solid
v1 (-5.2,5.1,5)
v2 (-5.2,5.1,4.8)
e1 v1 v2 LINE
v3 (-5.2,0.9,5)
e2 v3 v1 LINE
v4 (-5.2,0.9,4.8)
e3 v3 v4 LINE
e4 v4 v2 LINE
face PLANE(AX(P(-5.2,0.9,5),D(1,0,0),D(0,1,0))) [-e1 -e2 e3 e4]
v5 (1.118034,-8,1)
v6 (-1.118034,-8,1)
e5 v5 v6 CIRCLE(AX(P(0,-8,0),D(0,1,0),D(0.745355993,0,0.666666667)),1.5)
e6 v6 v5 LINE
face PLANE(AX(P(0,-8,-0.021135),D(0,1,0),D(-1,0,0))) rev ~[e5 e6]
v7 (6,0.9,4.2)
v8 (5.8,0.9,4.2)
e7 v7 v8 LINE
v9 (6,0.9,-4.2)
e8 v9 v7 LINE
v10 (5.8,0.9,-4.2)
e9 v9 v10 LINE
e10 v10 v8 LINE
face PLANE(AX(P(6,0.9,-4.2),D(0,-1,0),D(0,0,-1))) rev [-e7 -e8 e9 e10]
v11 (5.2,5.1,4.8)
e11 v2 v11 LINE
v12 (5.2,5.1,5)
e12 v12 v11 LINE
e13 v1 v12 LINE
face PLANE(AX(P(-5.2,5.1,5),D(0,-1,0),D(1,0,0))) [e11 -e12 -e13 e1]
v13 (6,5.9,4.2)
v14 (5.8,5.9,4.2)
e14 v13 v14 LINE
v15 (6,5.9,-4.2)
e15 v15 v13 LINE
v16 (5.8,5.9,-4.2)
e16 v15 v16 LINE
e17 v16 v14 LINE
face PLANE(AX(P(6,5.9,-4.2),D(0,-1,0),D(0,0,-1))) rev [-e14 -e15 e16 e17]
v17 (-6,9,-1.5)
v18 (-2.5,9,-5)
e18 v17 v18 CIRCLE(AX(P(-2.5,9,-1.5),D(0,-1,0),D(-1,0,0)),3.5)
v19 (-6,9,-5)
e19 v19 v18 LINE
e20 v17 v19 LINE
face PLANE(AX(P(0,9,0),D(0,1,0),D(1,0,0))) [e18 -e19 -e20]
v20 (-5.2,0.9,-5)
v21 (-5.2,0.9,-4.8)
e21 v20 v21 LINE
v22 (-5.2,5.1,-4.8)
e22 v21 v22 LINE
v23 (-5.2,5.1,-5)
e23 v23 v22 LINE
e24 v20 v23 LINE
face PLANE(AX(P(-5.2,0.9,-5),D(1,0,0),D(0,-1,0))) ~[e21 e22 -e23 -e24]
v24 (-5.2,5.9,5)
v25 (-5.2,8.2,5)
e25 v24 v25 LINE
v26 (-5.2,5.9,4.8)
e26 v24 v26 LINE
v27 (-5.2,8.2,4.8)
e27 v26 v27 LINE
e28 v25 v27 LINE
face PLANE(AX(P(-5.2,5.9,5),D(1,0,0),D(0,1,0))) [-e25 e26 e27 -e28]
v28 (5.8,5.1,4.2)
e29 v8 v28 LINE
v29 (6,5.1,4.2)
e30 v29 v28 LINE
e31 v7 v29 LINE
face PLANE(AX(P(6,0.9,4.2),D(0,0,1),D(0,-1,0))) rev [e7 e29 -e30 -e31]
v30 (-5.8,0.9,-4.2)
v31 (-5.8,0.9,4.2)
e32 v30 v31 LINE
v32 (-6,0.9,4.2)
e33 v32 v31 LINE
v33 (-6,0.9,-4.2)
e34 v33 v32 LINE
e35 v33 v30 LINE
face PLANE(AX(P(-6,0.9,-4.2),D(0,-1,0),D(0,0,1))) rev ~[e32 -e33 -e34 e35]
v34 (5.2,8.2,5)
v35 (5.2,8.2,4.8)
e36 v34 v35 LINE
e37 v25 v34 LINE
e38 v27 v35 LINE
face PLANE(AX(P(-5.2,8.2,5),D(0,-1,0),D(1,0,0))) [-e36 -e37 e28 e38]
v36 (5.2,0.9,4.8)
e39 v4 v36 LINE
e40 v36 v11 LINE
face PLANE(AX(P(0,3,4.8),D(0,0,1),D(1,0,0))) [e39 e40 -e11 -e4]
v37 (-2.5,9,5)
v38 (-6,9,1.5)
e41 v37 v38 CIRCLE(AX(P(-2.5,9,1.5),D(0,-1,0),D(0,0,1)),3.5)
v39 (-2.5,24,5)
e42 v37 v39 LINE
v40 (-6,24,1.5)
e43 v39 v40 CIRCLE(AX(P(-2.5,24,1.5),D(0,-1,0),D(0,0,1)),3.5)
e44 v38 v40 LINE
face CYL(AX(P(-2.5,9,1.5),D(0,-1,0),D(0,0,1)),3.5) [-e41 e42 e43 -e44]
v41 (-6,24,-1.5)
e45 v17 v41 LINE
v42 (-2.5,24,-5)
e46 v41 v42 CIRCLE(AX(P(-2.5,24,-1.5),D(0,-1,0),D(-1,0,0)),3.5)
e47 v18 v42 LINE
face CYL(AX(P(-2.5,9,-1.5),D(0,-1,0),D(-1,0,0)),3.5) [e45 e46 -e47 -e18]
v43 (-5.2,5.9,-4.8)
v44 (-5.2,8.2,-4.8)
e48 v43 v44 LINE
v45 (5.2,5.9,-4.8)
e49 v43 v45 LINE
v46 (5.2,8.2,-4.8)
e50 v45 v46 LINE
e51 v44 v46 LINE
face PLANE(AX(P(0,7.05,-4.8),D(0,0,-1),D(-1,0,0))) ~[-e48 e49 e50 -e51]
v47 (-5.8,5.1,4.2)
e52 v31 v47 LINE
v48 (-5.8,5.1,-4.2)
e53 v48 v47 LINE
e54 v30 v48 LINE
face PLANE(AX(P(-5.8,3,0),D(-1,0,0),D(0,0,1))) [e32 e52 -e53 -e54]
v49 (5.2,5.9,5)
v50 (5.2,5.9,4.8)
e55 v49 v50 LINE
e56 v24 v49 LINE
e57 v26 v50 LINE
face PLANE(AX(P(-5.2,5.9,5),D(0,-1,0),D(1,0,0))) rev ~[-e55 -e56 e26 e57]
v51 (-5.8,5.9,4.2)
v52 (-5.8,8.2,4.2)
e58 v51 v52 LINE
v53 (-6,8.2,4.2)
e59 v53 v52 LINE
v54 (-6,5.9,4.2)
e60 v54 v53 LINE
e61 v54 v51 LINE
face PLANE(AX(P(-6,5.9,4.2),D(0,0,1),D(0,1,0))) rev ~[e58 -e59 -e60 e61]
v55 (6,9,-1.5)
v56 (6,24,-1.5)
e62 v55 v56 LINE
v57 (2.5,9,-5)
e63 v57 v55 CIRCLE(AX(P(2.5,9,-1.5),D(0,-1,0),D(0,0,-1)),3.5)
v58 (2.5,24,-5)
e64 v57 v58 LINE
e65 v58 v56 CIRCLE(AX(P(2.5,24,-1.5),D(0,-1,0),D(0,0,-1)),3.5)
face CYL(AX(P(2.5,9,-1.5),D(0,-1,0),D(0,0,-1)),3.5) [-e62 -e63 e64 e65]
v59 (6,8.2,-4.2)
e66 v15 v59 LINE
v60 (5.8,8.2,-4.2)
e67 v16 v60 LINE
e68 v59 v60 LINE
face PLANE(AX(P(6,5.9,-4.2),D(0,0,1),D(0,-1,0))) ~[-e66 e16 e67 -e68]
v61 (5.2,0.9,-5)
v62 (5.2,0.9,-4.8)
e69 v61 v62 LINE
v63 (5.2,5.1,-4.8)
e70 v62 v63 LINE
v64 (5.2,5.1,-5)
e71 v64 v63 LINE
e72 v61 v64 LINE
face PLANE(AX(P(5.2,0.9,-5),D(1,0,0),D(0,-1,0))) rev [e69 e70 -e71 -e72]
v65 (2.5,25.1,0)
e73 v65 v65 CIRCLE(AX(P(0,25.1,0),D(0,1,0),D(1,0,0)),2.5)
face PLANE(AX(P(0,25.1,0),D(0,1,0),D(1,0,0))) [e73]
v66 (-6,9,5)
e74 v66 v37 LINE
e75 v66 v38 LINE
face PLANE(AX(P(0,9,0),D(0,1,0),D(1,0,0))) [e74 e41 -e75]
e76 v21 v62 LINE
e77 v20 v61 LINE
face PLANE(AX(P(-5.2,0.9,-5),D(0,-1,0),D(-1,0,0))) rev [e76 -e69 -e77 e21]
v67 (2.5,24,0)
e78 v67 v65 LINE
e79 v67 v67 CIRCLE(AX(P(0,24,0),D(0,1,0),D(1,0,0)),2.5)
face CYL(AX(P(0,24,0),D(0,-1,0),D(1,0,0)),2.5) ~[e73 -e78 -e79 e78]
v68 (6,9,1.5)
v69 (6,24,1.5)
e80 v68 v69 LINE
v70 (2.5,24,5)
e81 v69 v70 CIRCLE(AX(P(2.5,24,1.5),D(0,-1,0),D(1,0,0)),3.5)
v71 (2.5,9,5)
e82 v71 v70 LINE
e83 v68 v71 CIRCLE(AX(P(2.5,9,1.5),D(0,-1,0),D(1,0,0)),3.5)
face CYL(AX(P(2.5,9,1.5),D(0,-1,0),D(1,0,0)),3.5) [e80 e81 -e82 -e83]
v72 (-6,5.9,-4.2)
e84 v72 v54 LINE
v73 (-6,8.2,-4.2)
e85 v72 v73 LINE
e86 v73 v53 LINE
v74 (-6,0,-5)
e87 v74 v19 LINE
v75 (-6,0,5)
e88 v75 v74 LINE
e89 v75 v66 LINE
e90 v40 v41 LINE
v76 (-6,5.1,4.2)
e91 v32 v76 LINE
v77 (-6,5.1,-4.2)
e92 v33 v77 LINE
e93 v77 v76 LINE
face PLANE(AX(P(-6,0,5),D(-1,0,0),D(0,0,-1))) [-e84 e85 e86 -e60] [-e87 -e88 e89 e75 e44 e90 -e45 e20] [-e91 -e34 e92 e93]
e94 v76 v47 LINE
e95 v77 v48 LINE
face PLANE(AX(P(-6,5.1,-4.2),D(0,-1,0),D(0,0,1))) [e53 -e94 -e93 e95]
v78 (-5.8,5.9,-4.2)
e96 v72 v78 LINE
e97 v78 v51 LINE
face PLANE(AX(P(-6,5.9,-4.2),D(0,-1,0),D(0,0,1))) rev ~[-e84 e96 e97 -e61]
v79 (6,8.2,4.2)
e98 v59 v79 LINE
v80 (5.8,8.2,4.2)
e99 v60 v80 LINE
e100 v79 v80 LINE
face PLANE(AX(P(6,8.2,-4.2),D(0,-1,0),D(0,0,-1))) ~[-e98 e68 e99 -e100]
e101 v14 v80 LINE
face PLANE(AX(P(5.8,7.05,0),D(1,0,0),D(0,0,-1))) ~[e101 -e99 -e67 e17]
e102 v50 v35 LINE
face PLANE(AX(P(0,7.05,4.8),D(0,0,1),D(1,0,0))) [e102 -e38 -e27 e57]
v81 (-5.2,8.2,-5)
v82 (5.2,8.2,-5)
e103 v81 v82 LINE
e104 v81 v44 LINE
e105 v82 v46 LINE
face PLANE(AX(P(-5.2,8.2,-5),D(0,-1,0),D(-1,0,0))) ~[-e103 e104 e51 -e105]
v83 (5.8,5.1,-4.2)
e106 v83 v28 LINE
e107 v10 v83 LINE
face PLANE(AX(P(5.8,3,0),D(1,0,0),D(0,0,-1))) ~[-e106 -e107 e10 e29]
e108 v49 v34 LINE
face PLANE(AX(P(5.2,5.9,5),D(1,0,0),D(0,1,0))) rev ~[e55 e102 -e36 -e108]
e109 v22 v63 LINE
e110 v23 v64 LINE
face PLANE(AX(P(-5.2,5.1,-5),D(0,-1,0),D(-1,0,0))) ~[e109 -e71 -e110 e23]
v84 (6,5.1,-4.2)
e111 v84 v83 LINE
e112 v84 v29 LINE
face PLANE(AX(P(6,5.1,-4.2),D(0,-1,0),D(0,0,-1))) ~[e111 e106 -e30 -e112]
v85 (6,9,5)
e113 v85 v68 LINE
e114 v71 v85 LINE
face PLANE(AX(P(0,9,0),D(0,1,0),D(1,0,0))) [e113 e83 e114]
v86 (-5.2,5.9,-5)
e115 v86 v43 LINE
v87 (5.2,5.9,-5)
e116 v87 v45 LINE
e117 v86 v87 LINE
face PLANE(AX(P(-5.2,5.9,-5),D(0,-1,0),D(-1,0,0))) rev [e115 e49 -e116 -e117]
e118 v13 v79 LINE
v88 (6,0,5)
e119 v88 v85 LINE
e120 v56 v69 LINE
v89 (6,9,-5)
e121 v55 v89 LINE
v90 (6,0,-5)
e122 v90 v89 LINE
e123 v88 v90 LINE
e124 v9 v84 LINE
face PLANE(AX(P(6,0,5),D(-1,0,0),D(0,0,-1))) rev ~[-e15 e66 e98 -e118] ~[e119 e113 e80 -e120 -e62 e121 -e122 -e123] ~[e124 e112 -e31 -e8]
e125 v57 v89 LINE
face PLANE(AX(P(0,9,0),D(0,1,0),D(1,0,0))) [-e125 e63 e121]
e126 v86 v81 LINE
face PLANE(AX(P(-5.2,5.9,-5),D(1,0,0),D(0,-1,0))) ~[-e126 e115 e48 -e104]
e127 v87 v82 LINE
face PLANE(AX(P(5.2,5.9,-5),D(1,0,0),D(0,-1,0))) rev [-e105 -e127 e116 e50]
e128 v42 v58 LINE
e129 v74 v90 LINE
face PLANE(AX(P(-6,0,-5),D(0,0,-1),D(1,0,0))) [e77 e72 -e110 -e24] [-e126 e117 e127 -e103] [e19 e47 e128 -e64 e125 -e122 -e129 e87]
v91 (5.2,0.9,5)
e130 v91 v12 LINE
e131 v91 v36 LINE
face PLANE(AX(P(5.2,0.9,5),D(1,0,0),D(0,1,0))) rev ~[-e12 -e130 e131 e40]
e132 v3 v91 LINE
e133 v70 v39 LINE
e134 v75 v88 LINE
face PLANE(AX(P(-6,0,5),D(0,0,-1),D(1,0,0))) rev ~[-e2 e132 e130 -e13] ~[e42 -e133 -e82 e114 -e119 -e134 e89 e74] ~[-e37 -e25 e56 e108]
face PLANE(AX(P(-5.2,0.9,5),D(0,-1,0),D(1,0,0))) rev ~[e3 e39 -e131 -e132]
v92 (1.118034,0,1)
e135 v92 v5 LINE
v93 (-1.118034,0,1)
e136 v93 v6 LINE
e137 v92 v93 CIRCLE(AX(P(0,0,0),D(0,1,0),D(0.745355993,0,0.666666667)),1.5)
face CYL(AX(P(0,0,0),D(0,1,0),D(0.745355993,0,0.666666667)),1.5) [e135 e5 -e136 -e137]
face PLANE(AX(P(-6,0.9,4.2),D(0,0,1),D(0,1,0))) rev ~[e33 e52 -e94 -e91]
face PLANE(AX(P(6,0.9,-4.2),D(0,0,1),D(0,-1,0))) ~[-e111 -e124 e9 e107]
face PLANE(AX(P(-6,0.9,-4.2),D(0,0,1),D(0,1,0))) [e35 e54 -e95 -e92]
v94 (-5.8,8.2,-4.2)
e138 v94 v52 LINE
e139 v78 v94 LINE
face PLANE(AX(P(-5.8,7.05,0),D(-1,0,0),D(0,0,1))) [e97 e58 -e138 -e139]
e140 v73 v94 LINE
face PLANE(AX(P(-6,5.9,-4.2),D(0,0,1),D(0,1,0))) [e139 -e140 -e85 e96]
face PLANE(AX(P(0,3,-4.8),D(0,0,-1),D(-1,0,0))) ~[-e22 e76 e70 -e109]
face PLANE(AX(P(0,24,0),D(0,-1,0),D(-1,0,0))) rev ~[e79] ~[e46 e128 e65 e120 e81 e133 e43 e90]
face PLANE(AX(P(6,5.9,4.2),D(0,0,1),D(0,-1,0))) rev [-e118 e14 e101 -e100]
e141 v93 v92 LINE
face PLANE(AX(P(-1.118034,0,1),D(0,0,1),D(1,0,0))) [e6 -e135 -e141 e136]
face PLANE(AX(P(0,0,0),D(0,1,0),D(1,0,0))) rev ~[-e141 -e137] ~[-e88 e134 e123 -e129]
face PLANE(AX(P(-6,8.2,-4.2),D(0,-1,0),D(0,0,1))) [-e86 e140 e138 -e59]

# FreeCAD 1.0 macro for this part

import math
import FreeCAD as App
import Part
import Sketcher
Q = App.Units.Quantity


def add_polygon(sketch, points):
    """Adds a closed chain of lines whose ends are joined by coincident constraints."""
    first, n = sketch.GeometryCount, len(points)
    for a, b in zip(points, points[1:] + points[:1]):
        sketch.addGeometry(Part.LineSegment(App.Vector(*a, 0), App.Vector(*b, 0)), False)
    for i in range(n):
        sketch.addConstraint(Sketcher.Constraint("Coincident", first + i, 2, first + (i + 1) % n, 1))

doc = App.newDocument("Part")
body = doc.addObject("PartDesign::Body", "Body")

sketch1 = body.newObject("Sketcher::SketchObject", "Sketch")
sketch1.AttachmentSupport = (doc.getObject("XZ_Plane"), [""])
sketch1.MapMode = "FlatFace"
add_polygon(sketch1, [(-6, -5), (-6, 5), (6, 5), (6, -5)])
sketch1.addConstraint([
    Sketcher.Constraint("Vertical", 0),
    Sketcher.Constraint("Horizontal", 1),
    Sketcher.Constraint("Vertical", 2),
    Sketcher.Constraint("Horizontal", 3),
    Sketcher.Constraint("Symmetric", 0, 2, 2, 2, -1, 1),
    Sketcher.Constraint("DistanceX", 1, 1, 1, 2, Q("12 mm")),
    Sketcher.Constraint("DistanceY", 0, 1, 0, 2, Q("10 mm")),
])
pad1 = body.newObject("PartDesign::Pad", "Pad")
pad1.Profile = sketch1
pad1.Length = 9
pad1.Reversed = True

sketch2 = body.newObject("Sketcher::SketchObject", "Sketch001")
sketch2.AttachmentSupport = (doc.getObject("XZ_Plane"), [""])
sketch2.MapMode = "FlatFace"
sketch2.AttachmentOffset = App.Placement(App.Vector(0, 0, -9), App.Rotation())
sketch2.addGeometry([
    Part.LineSegment(App.Vector(2.5, -5, 0), App.Vector(-2.5, -5, 0)),
    Part.ArcOfCircle(Part.Circle(App.Vector(-2.5, -1.5, 0), App.Vector(0, 0, 1), 3.5), math.radians(-180), math.radians(-90)),
    Part.LineSegment(App.Vector(-6, -1.5, 0), App.Vector(-6, 1.5, 0)),
    Part.ArcOfCircle(Part.Circle(App.Vector(-2.5, 1.5, 0), App.Vector(0, 0, 1), 3.5), math.radians(90), math.radians(180)),
    Part.LineSegment(App.Vector(-2.5, 5, 0), App.Vector(2.5, 5, 0)),
    Part.ArcOfCircle(Part.Circle(App.Vector(2.5, 1.5, 0), App.Vector(0, 0, 1), 3.5), math.radians(0), math.radians(90)),
    Part.LineSegment(App.Vector(6, 1.5, 0), App.Vector(6, -1.5, 0)),
    Part.ArcOfCircle(Part.Circle(App.Vector(2.5, -1.5, 0), App.Vector(0, 0, 1), 3.5), math.radians(-90), math.radians(0)),
], False)
sketch2.addConstraint([
    Sketcher.Constraint("Tangent", 0, 2, 1, 2),
    Sketcher.Constraint("Tangent", 1, 1, 2, 1),
    Sketcher.Constraint("Tangent", 2, 2, 3, 2),
    Sketcher.Constraint("Tangent", 3, 1, 4, 1),
    Sketcher.Constraint("Tangent", 4, 2, 5, 2),
    Sketcher.Constraint("Tangent", 5, 1, 6, 1),
    Sketcher.Constraint("Tangent", 6, 2, 7, 2),
    Sketcher.Constraint("Tangent", 7, 1, 0, 1),
    Sketcher.Constraint("Horizontal", 0),
    Sketcher.Constraint("Vertical", 2),
    Sketcher.Constraint("Horizontal", 4),
    Sketcher.Constraint("Vertical", 6),
    Sketcher.Constraint("Equal", 1, 3),
    Sketcher.Constraint("Equal", 3, 5),
    Sketcher.Constraint("Equal", 5, 7),
    Sketcher.Constraint("Symmetric", 1, 3, 5, 3, -1, 1),
    Sketcher.Constraint("Radius", 1, Q("3.5 mm")),
    Sketcher.Constraint("DistanceX", 0, 2, 0, 1, Q("5 mm")),
    Sketcher.Constraint("DistanceY", 2, 1, 2, 2, Q("3 mm")),
])
pad2 = body.newObject("PartDesign::Pad", "Pad001")
pad2.Profile = sketch2
pad2.Length = 15
pad2.Reversed = True

sketch3 = body.newObject("Sketcher::SketchObject", "Sketch002")
sketch3.AttachmentSupport = (doc.getObject("XZ_Plane"), [""])
sketch3.MapMode = "FlatFace"
sketch3.AttachmentOffset = App.Placement(App.Vector(0, 0, -24), App.Rotation())
sketch3.addGeometry(Part.Circle(App.Vector(0, 0, 0), App.Vector(0, 0, 1), 2.5), False)
sketch3.addConstraint([
    Sketcher.Constraint("Coincident", 0, 3, -1, 1),
    Sketcher.Constraint("Diameter", 0, Q("5 mm")),
])
pad3 = body.newObject("PartDesign::Pad", "Pad002")
pad3.Profile = sketch3
pad3.Length = 1.1
pad3.Reversed = True

sketch4 = body.newObject("Sketcher::SketchObject", "Sketch003")
sketch4.AttachmentSupport = (doc.getObject("XZ_Plane"), [""])
sketch4.MapMode = "FlatFace"
sketch4.addGeometry([
    Part.LineSegment(App.Vector(1.1, 1, 0), App.Vector(-1.1, 1, 0)),
    Part.ArcOfCircle(Part.Circle(App.Vector(0, 0, 0), App.Vector(0, 0, 1), 1.5), math.radians(138), math.radians(402)),
], False)
sketch4.addConstraint([
    Sketcher.Constraint("Coincident", 0, 1, 1, 2),
    Sketcher.Constraint("Coincident", 1, 1, 0, 2),
    Sketcher.Constraint("Horizontal", 0),
    Sketcher.Constraint("Coincident", 1, 3, -1, 1),
    Sketcher.Constraint("Radius", 1, Q("1.5 mm")),
    Sketcher.Constraint("DistanceY", -1, 1, 0, 1, Q("1 mm")),
])
pad4 = body.newObject("PartDesign::Pad", "Pad003")
pad4.Profile = sketch4
pad4.Length = 8

sketch5 = body.newObject("Sketcher::SketchObject", "Sketch004")
sketch5.AttachmentSupport = (doc.getObject("XY_Plane"), [""])
sketch5.MapMode = "FlatFace"
sketch5.AttachmentOffset = App.Placement(App.Vector(0, 0, 5), App.Rotation())
add_polygon(sketch5, [(-5.2, 8.2), (-5.2, 5.9), (5.2, 5.9), (5.2, 8.2)])
add_polygon(sketch5, [(-5.2, 5.1), (-5.2, 0.9), (5.2, 0.9), (5.2, 5.1)])
sketch5.addConstraint([
    Sketcher.Constraint("Vertical", 0),
    Sketcher.Constraint("Horizontal", 1),
    Sketcher.Constraint("Vertical", 2),
    Sketcher.Constraint("Horizontal", 3),
    Sketcher.Constraint("Vertical", 4),
    Sketcher.Constraint("Horizontal", 5),
    Sketcher.Constraint("Vertical", 6),
    Sketcher.Constraint("Horizontal", 7),
    Sketcher.Constraint("Vertical", 3, 2, 4, 2),
    Sketcher.Constraint("Vertical", 2, 2, 5, 2),
    Sketcher.Constraint("DistanceX", 1, 1, 1, 2, Q("10.4 mm")),
    Sketcher.Constraint("DistanceY", 0, 2, 0, 1, Q("2.3 mm")),
    Sketcher.Constraint("DistanceY", 4, 2, 4, 1, Q("4.2 mm")),
    Sketcher.Constraint("DistanceY", 4, 2, 0, 2, Q("5 mm")),
    Sketcher.Constraint("DistanceX", 0, 2, -1, 1, Q("5.2 mm")),
    Sketcher.Constraint("DistanceY", -1, 1, 0, 2, Q("5.9 mm")),
])
pocket1 = body.newObject("PartDesign::Pocket", "Pocket")
pocket1.Profile = sketch5
pocket1.Length = 0.2
doc.recompute()

mirrored = body.newObject("PartDesign::Mirrored", "Mirrored")
mirrored.Originals = [pocket1]
mirrored.MirrorPlane = (doc.getObject("XY_Plane"), [""])
body.Tip = mirrored

sketch6 = body.newObject("Sketcher::SketchObject", "Sketch005")
sketch6.AttachmentSupport = (doc.getObject("YZ_Plane"), [""])
sketch6.MapMode = "FlatFace"
sketch6.AttachmentOffset = App.Placement(App.Vector(0, 0, -6), App.Rotation())
add_polygon(sketch6, [(8.2, -4.2), (5.9, -4.2), (5.9, 4.2), (8.2, 4.2)])
add_polygon(sketch6, [(5.1, -4.2), (0.9, -4.2), (0.9, 4.2), (5.1, 4.2)])
sketch6.addConstraint([
    Sketcher.Constraint("Horizontal", 0),
    Sketcher.Constraint("Vertical", 1),
    Sketcher.Constraint("Horizontal", 2),
    Sketcher.Constraint("Vertical", 3),
    Sketcher.Constraint("Horizontal", 4),
    Sketcher.Constraint("Vertical", 5),
    Sketcher.Constraint("Horizontal", 6),
    Sketcher.Constraint("Vertical", 7),
    Sketcher.Constraint("Horizontal", 3, 2, 4, 2),
    Sketcher.Constraint("Horizontal", 2, 2, 5, 2),
    Sketcher.Constraint("DistanceX", 0, 2, 0, 1, Q("2.3 mm")),
    Sketcher.Constraint("DistanceX", 4, 2, 4, 1, Q("4.2 mm")),
    Sketcher.Constraint("DistanceY", 1, 1, 1, 2, Q("8.4 mm")),
    Sketcher.Constraint("DistanceX", 4, 2, 0, 2, Q("5 mm")),
    Sketcher.Constraint("DistanceX", -1, 1, 0, 2, Q("5.9 mm")),
    Sketcher.Constraint("DistanceY", 0, 2, -1, 1, Q("4.2 mm")),
])
pocket2 = body.newObject("PartDesign::Pocket", "Pocket001")
pocket2.Profile = sketch6
pocket2.Length = 0.2
pocket2.Reversed = True
doc.recompute()

mirrored2 = body.newObject("PartDesign::Mirrored", "Mirrored001")
mirrored2.Originals = [pocket2]
mirrored2.MirrorPlane = (doc.getObject("YZ_Plane"), [""])
body.Tip = mirrored2

doc.recompute()
